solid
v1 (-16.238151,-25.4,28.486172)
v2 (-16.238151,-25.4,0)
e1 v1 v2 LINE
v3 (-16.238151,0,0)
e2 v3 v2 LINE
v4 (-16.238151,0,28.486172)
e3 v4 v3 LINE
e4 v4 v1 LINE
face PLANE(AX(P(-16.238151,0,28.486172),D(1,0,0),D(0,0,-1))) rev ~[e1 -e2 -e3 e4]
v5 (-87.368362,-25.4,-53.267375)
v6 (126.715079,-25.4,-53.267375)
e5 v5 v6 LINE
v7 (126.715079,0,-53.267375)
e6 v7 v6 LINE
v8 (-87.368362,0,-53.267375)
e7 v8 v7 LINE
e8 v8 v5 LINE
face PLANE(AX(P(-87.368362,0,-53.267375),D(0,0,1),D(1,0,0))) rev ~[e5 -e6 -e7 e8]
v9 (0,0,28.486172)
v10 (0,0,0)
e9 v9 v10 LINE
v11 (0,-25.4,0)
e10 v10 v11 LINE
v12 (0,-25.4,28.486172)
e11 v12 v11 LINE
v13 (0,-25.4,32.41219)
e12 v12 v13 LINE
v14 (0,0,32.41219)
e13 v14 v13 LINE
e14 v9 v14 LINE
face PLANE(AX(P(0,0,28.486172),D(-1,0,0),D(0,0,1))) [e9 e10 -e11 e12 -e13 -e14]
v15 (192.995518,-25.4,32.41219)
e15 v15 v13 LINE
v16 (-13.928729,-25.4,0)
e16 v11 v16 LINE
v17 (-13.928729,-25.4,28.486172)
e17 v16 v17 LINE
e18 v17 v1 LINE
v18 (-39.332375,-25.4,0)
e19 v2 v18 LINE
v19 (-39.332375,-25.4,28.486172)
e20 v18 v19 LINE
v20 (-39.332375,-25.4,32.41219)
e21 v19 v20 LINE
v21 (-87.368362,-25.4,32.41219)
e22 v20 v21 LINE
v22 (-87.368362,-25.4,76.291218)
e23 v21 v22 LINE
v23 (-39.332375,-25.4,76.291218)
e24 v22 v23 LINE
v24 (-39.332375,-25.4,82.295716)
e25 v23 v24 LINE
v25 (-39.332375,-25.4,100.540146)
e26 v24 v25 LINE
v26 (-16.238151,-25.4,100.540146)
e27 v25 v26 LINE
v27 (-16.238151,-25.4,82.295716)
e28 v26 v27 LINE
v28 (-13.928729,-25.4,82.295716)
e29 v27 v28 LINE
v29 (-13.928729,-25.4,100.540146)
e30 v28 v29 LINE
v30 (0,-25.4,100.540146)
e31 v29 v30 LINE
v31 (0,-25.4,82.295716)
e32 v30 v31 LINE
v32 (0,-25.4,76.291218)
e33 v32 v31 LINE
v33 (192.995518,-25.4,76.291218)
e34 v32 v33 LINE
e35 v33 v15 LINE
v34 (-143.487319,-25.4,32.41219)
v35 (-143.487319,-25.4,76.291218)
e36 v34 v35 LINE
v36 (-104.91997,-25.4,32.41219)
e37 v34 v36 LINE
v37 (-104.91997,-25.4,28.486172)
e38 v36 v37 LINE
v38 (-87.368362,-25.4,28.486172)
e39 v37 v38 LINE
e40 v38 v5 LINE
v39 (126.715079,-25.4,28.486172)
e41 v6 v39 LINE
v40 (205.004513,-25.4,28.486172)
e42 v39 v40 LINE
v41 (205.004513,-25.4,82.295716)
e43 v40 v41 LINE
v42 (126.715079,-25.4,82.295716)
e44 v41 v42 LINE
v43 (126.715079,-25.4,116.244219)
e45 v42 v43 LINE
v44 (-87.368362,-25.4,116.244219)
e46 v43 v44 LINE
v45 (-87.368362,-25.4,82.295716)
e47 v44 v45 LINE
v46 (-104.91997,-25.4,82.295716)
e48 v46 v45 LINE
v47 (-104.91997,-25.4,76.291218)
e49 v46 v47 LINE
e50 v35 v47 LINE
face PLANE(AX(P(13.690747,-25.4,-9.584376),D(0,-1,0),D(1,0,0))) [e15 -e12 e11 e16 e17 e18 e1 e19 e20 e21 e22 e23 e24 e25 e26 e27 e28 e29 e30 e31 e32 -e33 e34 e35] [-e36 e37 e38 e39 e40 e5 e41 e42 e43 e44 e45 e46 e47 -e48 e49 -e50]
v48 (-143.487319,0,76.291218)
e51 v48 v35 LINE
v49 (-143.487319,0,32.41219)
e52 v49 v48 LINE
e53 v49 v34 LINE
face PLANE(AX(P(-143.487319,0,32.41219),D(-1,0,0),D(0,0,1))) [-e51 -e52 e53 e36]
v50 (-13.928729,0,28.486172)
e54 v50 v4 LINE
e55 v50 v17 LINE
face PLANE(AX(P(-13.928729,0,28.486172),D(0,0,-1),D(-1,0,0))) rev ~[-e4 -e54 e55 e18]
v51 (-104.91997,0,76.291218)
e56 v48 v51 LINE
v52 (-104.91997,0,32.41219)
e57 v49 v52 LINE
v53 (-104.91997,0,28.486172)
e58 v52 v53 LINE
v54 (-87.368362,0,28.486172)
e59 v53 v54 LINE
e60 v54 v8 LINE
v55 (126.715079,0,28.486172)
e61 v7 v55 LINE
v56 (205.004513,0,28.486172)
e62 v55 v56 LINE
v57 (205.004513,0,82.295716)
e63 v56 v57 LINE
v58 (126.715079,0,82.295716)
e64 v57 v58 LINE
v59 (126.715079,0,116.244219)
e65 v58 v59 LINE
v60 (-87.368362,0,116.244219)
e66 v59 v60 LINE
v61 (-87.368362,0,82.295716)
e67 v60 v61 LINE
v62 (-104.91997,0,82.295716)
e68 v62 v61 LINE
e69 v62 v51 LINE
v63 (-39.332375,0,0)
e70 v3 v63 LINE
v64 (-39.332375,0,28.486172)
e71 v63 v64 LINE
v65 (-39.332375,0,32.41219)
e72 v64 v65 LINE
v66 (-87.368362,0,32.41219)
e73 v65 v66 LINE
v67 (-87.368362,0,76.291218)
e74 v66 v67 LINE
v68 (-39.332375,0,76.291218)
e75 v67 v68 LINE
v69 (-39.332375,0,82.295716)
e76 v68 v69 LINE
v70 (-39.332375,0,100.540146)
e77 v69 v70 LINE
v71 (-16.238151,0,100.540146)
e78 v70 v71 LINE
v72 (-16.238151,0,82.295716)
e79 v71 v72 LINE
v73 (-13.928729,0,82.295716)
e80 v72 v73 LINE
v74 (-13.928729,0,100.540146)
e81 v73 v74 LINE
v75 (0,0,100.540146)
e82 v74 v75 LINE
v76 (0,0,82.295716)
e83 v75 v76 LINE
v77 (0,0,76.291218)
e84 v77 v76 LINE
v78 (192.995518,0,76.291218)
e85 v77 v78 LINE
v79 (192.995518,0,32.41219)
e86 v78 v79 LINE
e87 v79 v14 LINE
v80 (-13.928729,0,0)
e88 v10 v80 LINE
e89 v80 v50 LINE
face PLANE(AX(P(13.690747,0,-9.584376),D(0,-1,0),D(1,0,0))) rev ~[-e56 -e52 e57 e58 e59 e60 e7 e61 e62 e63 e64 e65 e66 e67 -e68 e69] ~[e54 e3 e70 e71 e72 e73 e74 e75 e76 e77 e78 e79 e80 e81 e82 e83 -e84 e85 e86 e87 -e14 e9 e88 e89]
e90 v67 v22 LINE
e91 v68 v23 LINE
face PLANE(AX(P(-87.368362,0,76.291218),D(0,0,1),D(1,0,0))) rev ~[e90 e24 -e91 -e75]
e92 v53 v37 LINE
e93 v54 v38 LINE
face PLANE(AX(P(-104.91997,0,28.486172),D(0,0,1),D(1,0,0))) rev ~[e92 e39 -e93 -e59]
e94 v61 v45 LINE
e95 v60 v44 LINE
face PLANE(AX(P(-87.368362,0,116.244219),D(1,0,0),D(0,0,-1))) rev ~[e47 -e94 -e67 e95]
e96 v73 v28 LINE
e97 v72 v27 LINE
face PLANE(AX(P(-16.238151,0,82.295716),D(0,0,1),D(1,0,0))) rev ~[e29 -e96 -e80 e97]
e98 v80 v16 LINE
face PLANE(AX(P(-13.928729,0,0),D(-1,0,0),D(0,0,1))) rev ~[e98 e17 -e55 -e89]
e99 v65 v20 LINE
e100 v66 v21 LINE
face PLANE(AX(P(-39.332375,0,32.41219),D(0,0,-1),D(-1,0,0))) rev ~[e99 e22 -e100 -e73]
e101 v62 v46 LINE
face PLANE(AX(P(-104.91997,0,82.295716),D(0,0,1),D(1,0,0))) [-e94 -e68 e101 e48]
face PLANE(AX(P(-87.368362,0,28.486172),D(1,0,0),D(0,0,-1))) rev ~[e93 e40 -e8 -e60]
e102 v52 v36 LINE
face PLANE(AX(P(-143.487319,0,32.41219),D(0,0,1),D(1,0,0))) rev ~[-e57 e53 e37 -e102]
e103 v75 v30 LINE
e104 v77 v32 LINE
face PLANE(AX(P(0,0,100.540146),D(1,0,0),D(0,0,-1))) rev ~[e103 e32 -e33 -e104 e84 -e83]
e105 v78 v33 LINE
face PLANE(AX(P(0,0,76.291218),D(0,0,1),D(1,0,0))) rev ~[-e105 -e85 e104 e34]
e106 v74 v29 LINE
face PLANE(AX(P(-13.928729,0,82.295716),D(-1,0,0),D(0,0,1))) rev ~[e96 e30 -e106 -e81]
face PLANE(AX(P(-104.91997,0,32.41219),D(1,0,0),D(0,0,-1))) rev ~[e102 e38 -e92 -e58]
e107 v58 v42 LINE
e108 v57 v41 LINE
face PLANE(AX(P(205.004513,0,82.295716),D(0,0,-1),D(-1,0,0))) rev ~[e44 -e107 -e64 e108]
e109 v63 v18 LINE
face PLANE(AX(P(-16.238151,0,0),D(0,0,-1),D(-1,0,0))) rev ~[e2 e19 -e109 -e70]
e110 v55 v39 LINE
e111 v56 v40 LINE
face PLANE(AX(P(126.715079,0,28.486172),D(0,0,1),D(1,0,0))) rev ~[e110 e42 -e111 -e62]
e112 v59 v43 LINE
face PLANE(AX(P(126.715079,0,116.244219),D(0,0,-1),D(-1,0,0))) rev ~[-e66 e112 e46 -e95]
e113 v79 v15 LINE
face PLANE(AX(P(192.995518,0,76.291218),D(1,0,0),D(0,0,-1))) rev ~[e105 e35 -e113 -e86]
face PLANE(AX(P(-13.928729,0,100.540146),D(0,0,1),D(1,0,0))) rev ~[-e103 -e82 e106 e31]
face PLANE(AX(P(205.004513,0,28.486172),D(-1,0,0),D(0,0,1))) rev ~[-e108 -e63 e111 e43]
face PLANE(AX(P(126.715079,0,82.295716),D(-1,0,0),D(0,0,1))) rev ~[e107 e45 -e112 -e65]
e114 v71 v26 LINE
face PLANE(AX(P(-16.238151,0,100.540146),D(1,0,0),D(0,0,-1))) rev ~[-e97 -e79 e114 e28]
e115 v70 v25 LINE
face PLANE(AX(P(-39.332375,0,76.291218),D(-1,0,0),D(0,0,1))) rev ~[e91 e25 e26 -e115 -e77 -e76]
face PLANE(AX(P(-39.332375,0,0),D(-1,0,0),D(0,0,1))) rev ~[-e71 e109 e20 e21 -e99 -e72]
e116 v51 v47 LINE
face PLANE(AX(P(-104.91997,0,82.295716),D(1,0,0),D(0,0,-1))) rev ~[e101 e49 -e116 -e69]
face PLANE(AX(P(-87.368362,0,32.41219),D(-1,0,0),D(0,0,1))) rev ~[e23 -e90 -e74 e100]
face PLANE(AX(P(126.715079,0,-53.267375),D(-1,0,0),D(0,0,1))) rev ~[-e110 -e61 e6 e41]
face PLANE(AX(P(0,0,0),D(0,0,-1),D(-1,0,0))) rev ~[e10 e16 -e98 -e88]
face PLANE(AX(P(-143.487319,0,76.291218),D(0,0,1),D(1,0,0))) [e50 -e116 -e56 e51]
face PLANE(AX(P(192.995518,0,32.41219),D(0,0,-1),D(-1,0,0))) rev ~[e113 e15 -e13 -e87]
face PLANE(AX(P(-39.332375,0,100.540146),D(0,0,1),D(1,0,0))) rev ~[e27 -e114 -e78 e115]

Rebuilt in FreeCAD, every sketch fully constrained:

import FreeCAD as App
import Part
import Sketcher
from FreeCAD import Vector
Q = App.Units.Quantity


def add_polygon(sketch, points):
    """Adds a closed chain of lines whose ends are joined by coincident constraints."""
    first, n = sketch.GeometryCount, len(points)
    for a, b in zip(points, points[1:] + points[:1]):
        sketch.addGeometry(Part.LineSegment(App.Vector(*a, 0), App.Vector(*b, 0)), False)
    for i in range(n):
        sketch.addConstraint(Sketcher.Constraint("Coincident", first + i, 2, first + (i + 1) % n, 1))

doc = App.newDocument("Part")
params = doc.addObject("Spreadsheet::Sheet", "Params")
for row, (alias, value) in enumerate([
    ("pad1_length", "1 in"),
], start=1):
    params.set(f"A{row}", alias)
    params.set(f"B{row}", "=" + value)
    params.setAlias(f"B{row}", alias)

body = doc.addObject("PartDesign::Body", "Body")

# Sketch on XZ plane
sketch1 = doc.addObject("Sketcher::SketchObject", "Sketch")
body.addObject(sketch1)
sketch1.AttachmentSupport = (doc.XZ_Plane, [""])
sketch1.MapMode = "FlatFace"
add_polygon(sketch1, [(-87.4, 116.2), (-87.4, 82.3), (-104.9, 82.3), (-104.9, 76.3), (-143.5, 76.3), (-143.5, 32.4), (-104.9, 32.4), (-104.9, 28.5), (-87.4, 28.5), (-87.4, -53.3), (126.7, -53.3), (126.7, 28.5), (205, 28.5), (205, 82.3), (126.7, 82.3), (126.7, 116.2)])  # lines 0-15
add_polygon(sketch1, [(-87.4, 32.4), (-87.4, 76.3), (-39.3, 76.3), (-39.3, 82.3), (-39.3, 100.5), (-16.2, 100.5), (-16.2, 82.3), (-13.9, 82.3), (-13.9, 100.5), (0, 100.5), (0, 82.3), (0, 76.3), (193, 76.3), (193, 32.4), (0, 32.4), (0, 28.5), (0, 0), (-13.9, 0), (-13.9, 28.5), (-16.2, 28.5), (-16.2, 0), (-39.3, 0), (-39.3, 28.5), (-39.3, 32.4)])  # lines 16-39
sketch1.addConstraint([
    Sketcher.Constraint("Vertical", 0),
    Sketcher.Constraint("Horizontal", 1),
    Sketcher.Constraint("Vertical", 2),
    Sketcher.Constraint("Horizontal", 3),
    Sketcher.Constraint("Vertical", 4),
    Sketcher.Constraint("Horizontal", 5),
    Sketcher.Constraint("Vertical", 6),
    Sketcher.Constraint("Horizontal", 7),
    Sketcher.Constraint("Vertical", 8),
    Sketcher.Constraint("Horizontal", 9),
    Sketcher.Constraint("Vertical", 10),
    Sketcher.Constraint("Horizontal", 11),
    Sketcher.Constraint("Vertical", 12),
    Sketcher.Constraint("Horizontal", 13),
    Sketcher.Constraint("Vertical", 14),
    Sketcher.Constraint("Horizontal", 15),
    Sketcher.Constraint("Vertical", 16),
    Sketcher.Constraint("Horizontal", 17),
    Sketcher.Constraint("Vertical", 18),
    Sketcher.Constraint("Vertical", 19),
    Sketcher.Constraint("Horizontal", 20),
    Sketcher.Constraint("Vertical", 21),
    Sketcher.Constraint("Horizontal", 22),
    Sketcher.Constraint("Vertical", 23),
    Sketcher.Constraint("Horizontal", 24),
    Sketcher.Constraint("Vertical", 25),
    Sketcher.Constraint("Vertical", 26),
    Sketcher.Constraint("Horizontal", 27),
    Sketcher.Constraint("Vertical", 28),
    Sketcher.Constraint("Horizontal", 29),
    Sketcher.Constraint("Vertical", 30),
    Sketcher.Constraint("Vertical", 31),
    Sketcher.Constraint("Horizontal", 32),
    Sketcher.Constraint("Vertical", 33),
    Sketcher.Constraint("Horizontal", 34),
    Sketcher.Constraint("Vertical", 35),
    Sketcher.Constraint("Horizontal", 36),
    Sketcher.Constraint("Vertical", 37),
    Sketcher.Constraint("Vertical", 38),
    Sketcher.Constraint("Horizontal", 39),
    Sketcher.Constraint("Coincident", 31, 2, -1, 1),
    Sketcher.Constraint("PointOnObject", 24, 2, -2),
    Sketcher.Constraint("PointOnObject", 35, 2, -1),
    Sketcher.Constraint("Horizontal", 7, 2, 10, 2),
    Sketcher.Constraint("Horizontal", 1, 2, 12, 2),
    Sketcher.Constraint("Horizontal", 3, 2, 16, 2),
    Sketcher.Constraint("Horizontal", 13, 2, 18, 2),
    Sketcher.Constraint("Horizontal", 18, 2, 21, 2),
    Sketcher.Constraint("Horizontal", 20, 2, 23, 2),
    Sketcher.Constraint("Horizontal", 22, 2, 25, 2),
    Sketcher.Constraint("Horizontal", 17, 2, 26, 2),
    Sketcher.Constraint("Horizontal", 5, 2, 28, 2),
    Sketcher.Constraint("Horizontal", 11, 2, 30, 2),
    Sketcher.Constraint("Horizontal", 30, 2, 33, 2),
    Sketcher.Constraint("Horizontal", 34, 2, 37, 2),
    Sketcher.Constraint("Horizontal", 29, 2, 38, 2),
    Sketcher.Constraint("Vertical", 2, 2, 5, 2),
    Sketcher.Constraint("Vertical", 0, 2, 7, 2),
    Sketcher.Constraint("Vertical", 10, 2, 13, 2),
    Sketcher.Constraint("Vertical", 15, 2, 16, 2),
    Sketcher.Constraint("Vertical", 23, 2, 32, 2),
    Sketcher.Constraint("Vertical", 21, 2, 34, 2),
    Sketcher.Constraint("Vertical", 19, 2, 36, 2),
    Sketcher.Constraint("DistanceX", 1, 2, 1, 1, Q("17.551608 mm")),
    Sketcher.Constraint("DistanceX", 3, 2, 3, 1, Q("38.567349 mm")),
    Sketcher.Constraint("DistanceX", 9, 1, 9, 2, Q("214.083441 mm")),
    Sketcher.Constraint("DistanceX", 24, 1, 24, 2, Q("13.928729 mm")),
    Sketcher.Constraint("DistanceX", 27, 1, 27, 2, Q("192.995518 mm")),
    Sketcher.Constraint("DistanceY", 4, 2, 4, 1, Q("43.879028 mm")),
    Sketcher.Constraint("DistanceY", 6, 2, 6, 1, Q("3.926018 mm")),
    Sketcher.Constraint("DistanceY", 19, 1, 19, 2, Q("18.24443 mm")),
    Sketcher.Constraint("DistanceY", 31, 2, 31, 1, Q("28.486172 mm")),
    Sketcher.Constraint("DistanceY", 2, 2, 15, 2, Q("39.953001 mm")),
    Sketcher.Constraint("DistanceX", 11, 1, 11, 2, Q("78.289434 mm")),
    Sketcher.Constraint("DistanceX", 17, 1, 17, 2, Q("48.035987 mm")),
    Sketcher.Constraint("DistanceX", 20, 1, 20, 2, Q("23.094224 mm")),
    Sketcher.Constraint("DistanceX", 22, 1, 22, 2, Q("2.309422 mm")),
    Sketcher.Constraint("DistanceY", 0, 2, 0, 1, Q("33.948503 mm")),
    Sketcher.Constraint("DistanceY", 8, 2, 8, 1, Q("81.753546 mm")),
])
pad1 = doc.addObject("PartDesign::Pad", "Pad")
body.addObject(pad1)
pad1.Profile = sketch1
pad1.setExpression("Length", "Params.pad1_length")

doc.recompute()
